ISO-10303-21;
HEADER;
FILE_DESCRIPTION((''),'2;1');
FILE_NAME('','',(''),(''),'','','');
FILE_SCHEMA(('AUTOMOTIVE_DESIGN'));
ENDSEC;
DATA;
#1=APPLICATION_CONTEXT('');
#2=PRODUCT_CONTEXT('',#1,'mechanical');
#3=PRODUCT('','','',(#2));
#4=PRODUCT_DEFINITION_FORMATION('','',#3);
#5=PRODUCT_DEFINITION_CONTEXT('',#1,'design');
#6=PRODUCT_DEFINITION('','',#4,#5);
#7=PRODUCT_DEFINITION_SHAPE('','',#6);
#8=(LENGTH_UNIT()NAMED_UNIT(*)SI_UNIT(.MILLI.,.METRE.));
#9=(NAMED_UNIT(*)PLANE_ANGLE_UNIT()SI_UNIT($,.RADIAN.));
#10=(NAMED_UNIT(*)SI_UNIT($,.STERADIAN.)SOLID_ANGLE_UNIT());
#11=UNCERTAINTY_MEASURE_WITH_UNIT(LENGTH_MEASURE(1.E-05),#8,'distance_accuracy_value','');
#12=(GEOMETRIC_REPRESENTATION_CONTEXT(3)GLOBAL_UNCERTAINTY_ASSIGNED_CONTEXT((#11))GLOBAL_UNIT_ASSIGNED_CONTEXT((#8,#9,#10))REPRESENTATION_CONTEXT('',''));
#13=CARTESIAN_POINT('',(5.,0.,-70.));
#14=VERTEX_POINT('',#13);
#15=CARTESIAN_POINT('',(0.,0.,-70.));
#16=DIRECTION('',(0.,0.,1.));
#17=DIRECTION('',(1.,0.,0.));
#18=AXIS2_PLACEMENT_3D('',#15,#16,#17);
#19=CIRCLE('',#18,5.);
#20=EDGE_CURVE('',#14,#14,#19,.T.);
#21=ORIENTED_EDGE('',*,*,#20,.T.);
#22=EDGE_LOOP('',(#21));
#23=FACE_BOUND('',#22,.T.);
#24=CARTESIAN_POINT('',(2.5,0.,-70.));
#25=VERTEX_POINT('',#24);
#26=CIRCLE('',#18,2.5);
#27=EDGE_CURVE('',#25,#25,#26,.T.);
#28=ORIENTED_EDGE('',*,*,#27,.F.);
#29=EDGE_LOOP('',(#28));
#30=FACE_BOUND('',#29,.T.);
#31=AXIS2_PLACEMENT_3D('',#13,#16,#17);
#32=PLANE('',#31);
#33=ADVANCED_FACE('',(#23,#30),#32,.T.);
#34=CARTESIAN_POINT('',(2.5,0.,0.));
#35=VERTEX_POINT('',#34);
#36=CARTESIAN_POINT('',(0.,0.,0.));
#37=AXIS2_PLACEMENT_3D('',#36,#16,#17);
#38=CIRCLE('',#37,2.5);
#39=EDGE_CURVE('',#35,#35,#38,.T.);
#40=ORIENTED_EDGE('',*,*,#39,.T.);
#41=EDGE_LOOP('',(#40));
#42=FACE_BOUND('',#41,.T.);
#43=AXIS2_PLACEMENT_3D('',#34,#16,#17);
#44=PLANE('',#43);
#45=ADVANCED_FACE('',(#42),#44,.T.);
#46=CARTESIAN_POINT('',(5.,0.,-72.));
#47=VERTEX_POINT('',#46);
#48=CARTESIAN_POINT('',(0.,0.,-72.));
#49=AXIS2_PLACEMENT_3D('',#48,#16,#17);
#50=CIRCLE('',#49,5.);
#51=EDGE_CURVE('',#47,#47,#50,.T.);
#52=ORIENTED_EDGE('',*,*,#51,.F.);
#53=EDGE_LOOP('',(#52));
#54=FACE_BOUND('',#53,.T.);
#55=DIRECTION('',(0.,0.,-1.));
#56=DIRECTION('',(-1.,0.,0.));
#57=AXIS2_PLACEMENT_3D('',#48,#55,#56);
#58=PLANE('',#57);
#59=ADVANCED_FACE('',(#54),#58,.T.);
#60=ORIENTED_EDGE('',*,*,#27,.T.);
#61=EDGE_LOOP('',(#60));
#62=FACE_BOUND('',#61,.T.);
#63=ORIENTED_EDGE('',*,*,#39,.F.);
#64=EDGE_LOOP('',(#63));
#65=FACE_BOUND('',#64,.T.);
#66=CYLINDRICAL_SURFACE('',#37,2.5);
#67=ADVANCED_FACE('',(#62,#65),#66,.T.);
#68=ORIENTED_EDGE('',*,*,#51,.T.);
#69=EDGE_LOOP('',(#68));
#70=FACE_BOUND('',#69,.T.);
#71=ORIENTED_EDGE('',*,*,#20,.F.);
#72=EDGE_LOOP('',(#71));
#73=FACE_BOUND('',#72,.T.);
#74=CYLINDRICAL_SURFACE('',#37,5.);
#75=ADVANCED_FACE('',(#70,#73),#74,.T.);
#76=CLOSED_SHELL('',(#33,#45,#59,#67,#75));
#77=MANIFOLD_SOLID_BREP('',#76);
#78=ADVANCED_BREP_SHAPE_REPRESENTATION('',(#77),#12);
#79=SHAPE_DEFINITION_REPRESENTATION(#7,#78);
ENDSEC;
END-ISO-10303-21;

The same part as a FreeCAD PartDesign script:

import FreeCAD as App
import Part
import Sketcher
Q = App.Units.Quantity


def add_polygon(sketch, points):
    """Adds a closed chain of lines whose ends are joined by coincident constraints."""
    first, n = sketch.GeometryCount, len(points)
    for a, b in zip(points, points[1:] + points[:1]):
        sketch.addGeometry(Part.LineSegment(App.Vector(*a, 0), App.Vector(*b, 0)), False)
    for i in range(n):
        sketch.addConstraint(Sketcher.Constraint("Coincident", first + i, 2, first + (i + 1) % n, 1))

doc = App.newDocument("Part")
params = doc.addObject("Spreadsheet::Sheet", "Params")
for row, (alias, value) in enumerate([
    ("sketch1_width", "5 mm"),
    ("sketch1_height", "72 mm"),
    ("sketch1_height2", "70 mm"),
    ("revolution_angle", "360 deg"),
], start=1):
    params.set(f"A{row}", alias)
    params.set(f"B{row}", "=" + value)
    params.setAlias(f"B{row}", alias)

body = doc.addObject("PartDesign::Body", "Body")

# Sketch on XZ plane
sketch1 = body.newObject("Sketcher::SketchObject", "Sketch")
sketch1.AttachmentSupport = (doc.getObject("XZ_Plane"), [""])
sketch1.MapMode = "FlatFace"
add_polygon(sketch1, [(0, -72), (0, 0), (2.5, 0), (2.5, -70), (5, -70), (5, -72)])  # lines 0-5
sketch1.addConstraint(Sketcher.Constraint("Vertical", 0))
sketch1.addConstraint(Sketcher.Constraint("Horizontal", 1))
sketch1.addConstraint(Sketcher.Constraint("Vertical", 2))
sketch1.addConstraint(Sketcher.Constraint("Horizontal", 3))
sketch1.addConstraint(Sketcher.Constraint("Vertical", 4))
sketch1.addConstraint(Sketcher.Constraint("Horizontal", 5))
sketch1.addConstraint(Sketcher.Constraint("Coincident", 0, 2, -1, 1))
sketch1.addConstraint(Sketcher.Constraint("Equal", 1, 3))
sketch1.addConstraint(Sketcher.Constraint("DistanceX", 5, 2, 5, 1, Q("5 mm")))
sketch1.addConstraint(Sketcher.Constraint("DistanceY", 0, 1, 0, 2, Q("72 mm")))
sketch1.addConstraint(Sketcher.Constraint("DistanceY", 2, 2, 2, 1, Q("70 mm")))
sketch1.setExpression("Constraints[14]", "Params.sketch1_width")
sketch1.setExpression("Constraints[15]", "Params.sketch1_height")
sketch1.setExpression("Constraints[16]", "Params.sketch1_height2")
revolution = body.newObject("PartDesign::Revolution", "Revolution")
revolution.Profile = sketch1
revolution.ReferenceAxis = (sketch1, ["V_Axis"])
revolution.setExpression("Angle", "Params.revolution_angle")

doc.recompute()
